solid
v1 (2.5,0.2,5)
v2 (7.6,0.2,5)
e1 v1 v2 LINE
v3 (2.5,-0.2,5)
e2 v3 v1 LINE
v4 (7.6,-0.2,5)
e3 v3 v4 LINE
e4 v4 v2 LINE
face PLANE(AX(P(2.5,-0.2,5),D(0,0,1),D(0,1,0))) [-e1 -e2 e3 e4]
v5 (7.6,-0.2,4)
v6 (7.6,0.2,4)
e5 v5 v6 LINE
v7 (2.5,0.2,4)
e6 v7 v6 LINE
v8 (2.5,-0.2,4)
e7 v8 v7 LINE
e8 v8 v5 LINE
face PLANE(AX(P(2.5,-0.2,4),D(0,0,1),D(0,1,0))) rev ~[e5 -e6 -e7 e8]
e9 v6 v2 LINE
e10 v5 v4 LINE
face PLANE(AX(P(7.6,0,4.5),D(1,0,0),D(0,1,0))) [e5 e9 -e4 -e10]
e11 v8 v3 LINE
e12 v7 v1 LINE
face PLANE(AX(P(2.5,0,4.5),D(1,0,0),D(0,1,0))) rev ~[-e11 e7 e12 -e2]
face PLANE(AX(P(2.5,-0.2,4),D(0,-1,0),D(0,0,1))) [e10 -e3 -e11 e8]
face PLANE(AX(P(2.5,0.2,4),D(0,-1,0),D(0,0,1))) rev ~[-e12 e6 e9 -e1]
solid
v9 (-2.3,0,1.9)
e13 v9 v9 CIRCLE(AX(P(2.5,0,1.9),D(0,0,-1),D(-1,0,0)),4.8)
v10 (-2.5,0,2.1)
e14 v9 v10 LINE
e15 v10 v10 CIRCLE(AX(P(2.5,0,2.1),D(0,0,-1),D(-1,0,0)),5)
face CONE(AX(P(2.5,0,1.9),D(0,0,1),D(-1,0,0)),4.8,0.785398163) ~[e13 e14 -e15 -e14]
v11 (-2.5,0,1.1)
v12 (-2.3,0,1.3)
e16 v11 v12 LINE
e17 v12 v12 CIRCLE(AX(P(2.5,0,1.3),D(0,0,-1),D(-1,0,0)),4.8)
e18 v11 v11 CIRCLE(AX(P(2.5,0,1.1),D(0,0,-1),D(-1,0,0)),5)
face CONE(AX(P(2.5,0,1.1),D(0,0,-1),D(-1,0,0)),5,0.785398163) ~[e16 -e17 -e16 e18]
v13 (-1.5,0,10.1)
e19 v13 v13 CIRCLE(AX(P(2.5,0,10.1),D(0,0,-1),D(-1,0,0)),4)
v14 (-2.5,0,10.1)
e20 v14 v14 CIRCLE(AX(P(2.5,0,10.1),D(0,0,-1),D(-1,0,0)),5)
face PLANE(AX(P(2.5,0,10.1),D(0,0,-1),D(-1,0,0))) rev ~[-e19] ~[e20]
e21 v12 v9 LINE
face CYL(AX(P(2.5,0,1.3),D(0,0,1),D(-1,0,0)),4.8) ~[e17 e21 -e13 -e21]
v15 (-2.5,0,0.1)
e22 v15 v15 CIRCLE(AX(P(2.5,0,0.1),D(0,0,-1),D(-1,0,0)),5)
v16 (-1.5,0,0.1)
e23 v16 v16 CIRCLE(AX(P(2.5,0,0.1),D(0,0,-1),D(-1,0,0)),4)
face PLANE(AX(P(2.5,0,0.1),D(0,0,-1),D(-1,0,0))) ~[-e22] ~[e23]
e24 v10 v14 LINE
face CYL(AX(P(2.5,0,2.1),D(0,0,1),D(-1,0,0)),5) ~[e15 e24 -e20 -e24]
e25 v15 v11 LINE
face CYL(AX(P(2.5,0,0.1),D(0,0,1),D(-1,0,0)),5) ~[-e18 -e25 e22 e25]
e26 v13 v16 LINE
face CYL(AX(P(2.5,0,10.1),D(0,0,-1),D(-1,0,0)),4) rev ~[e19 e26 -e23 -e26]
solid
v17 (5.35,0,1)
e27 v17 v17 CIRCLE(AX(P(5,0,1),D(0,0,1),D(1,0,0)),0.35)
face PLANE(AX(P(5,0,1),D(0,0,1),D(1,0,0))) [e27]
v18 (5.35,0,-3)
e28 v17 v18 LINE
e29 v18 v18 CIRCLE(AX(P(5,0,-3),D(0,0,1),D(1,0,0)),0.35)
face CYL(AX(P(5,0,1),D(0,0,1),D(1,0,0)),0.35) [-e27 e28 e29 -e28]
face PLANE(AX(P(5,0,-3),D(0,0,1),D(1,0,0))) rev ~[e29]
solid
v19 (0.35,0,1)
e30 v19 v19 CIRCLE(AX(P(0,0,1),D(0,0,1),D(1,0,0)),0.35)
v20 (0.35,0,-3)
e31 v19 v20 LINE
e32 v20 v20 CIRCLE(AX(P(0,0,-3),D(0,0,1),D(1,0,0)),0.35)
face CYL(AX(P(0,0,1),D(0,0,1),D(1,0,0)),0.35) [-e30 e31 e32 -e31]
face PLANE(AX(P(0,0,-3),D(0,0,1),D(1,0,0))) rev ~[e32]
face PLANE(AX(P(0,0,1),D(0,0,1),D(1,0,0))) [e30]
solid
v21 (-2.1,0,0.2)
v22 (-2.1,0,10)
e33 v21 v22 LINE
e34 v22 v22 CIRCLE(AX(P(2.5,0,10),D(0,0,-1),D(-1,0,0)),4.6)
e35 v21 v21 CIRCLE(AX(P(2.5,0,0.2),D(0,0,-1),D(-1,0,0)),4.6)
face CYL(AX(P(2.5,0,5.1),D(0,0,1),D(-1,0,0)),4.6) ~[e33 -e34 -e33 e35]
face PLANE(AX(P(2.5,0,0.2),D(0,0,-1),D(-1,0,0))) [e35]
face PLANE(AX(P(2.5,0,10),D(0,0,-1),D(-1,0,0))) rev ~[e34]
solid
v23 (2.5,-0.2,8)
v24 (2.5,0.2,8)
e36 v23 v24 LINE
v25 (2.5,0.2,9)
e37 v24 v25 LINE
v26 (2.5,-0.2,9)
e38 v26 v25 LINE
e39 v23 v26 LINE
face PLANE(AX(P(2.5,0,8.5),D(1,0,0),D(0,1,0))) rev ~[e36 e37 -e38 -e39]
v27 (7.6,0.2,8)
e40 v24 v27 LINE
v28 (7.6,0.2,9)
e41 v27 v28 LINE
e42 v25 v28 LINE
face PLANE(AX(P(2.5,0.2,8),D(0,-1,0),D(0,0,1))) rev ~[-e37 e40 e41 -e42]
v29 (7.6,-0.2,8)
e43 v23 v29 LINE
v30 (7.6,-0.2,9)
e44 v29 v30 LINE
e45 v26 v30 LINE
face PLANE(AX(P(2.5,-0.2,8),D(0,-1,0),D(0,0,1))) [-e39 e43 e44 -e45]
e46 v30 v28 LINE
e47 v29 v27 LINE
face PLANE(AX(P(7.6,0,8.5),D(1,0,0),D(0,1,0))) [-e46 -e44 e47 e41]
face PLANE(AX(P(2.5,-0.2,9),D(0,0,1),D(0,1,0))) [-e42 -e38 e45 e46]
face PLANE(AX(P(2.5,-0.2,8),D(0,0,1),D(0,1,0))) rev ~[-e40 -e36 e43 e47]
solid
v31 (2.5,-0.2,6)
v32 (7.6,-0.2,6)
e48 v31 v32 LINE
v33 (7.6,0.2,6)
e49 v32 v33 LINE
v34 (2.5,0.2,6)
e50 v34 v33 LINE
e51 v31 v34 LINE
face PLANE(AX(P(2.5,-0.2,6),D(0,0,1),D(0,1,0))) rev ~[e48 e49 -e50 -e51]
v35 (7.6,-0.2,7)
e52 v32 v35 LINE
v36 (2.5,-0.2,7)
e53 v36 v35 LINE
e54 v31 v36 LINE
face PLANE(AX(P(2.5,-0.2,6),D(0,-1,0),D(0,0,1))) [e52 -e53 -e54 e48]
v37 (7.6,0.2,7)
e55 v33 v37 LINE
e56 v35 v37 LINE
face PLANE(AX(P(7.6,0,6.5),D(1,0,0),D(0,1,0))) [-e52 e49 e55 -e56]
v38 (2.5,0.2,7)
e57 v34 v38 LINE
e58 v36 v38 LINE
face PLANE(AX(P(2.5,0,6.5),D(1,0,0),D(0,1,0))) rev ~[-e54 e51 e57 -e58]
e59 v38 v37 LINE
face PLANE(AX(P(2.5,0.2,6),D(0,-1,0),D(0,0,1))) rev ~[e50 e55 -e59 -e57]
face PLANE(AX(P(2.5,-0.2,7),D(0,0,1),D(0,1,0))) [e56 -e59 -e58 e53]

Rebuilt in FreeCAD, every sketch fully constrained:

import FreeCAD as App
import Part
import Sketcher

V = App.Vector
Q = App.Units.Quantity

doc = App.newDocument("Part")
body = doc.addObject("PartDesign::Body", "Body")

# Sketch on XZ plane
sketch1 = body.newObject("Sketcher::SketchObject", "Sketch")
sketch1.AttachmentSupport = (doc.getObject("XZ_Plane"), [""])
sketch1.MapMode = "FlatFace"
sketch1.addGeometry([
    Part.LineSegment(V(-2.5, 1.1, 0), V(-2.5, 0.1, 0)),  # 0
    Part.LineSegment(V(-2.5, 0.1, 0), V(-1.5, 0.1, 0)),  # 1
    Part.LineSegment(V(-1.5, 0.1, 0), V(-1.5, 10.1, 0)),  # 2
    Part.LineSegment(V(-1.5, 10.1, 0), V(-2.5, 10.1, 0)),  # 3
    Part.LineSegment(V(-2.5, 10.1, 0), V(-2.5, 2.1, 0)),  # 4
    Part.LineSegment(V(-2.5, 2.1, 0), V(-2.3, 1.9, 0)),  # 5
    Part.LineSegment(V(-2.3, 1.9, 0), V(-2.3, 1.3, 0)),  # 6
    Part.LineSegment(V(-2.3, 1.3, 0), V(-2.5, 1.1, 0)),  # 7
], False)
sketch1.addGeometry(Part.LineSegment(V(2.5, 10.1, 0), V(2.5, 0.1, 0)), True)  # axis
sketch1.addConstraint([
    Sketcher.Constraint("Coincident", 0, 2, 1, 1),
    Sketcher.Constraint("Coincident", 1, 2, 2, 1),
    Sketcher.Constraint("Coincident", 2, 2, 3, 1),
    Sketcher.Constraint("Coincident", 3, 2, 4, 1),
    Sketcher.Constraint("Coincident", 4, 2, 5, 1),
    Sketcher.Constraint("Coincident", 5, 2, 6, 1),
    Sketcher.Constraint("Coincident", 6, 2, 7, 1),
    Sketcher.Constraint("Coincident", 7, 2, 0, 1),
    Sketcher.Constraint("Vertical", 0),
    Sketcher.Constraint("Horizontal", 1),
    Sketcher.Constraint("Vertical", 2),
    Sketcher.Constraint("Horizontal", 3),
    Sketcher.Constraint("Vertical", 4),
    Sketcher.Constraint("Vertical", 6),
    Sketcher.Constraint("Vertical", 8),
    Sketcher.Constraint("Symmetric", 3, 2, 8, 1, -2),
    Sketcher.Constraint("Symmetric", 0, 2, 8, 2, -2),
    Sketcher.Constraint("Perpendicular", 5, 7),
    Sketcher.Constraint("Equal", 3, 0),
    Sketcher.Constraint("Equal", 5, 7),
    Sketcher.Constraint("DistanceX", 1, 1, 1, 2, Q("1 mm")),
    Sketcher.Constraint("DistanceY", 2, 1, 2, 2, Q("10 mm")),
    Sketcher.Constraint("DistanceY", 4, 2, 4, 1, Q("8 mm")),
    Sketcher.Constraint("DistanceY", 6, 2, 6, 1, Q("0.6 mm")),
    Sketcher.Constraint("DistanceX", 2, 2, 8, 1, Q("4 mm")),
    Sketcher.Constraint("DistanceY", -1, 1, 0, 2, Q("0.1 mm")),
])
revolution = body.newObject("PartDesign::Revolution", "Revolution")
revolution.Profile = sketch1
revolution.ReferenceAxis = (sketch1, ["Axis0"])
revolution.Angle = 360
body2 = doc.addObject("PartDesign::Body", "Body001")

# Sketch on XZ plane
sketch2 = body2.newObject("Sketcher::SketchObject", "Sketch001")
sketch2.AttachmentSupport = (doc.getObject("XZ_Plane001"), [""])
sketch2.MapMode = "FlatFace"
sketch2.addGeometry([
    Part.LineSegment(V(-2.1, 10, 0), V(-2.1, 0.2, 0)),
    Part.LineSegment(V(-2.1, 0.2, 0), V(2.5, 0.2, 0)),
    Part.LineSegment(V(2.5, 0.2, 0), V(2.5, 10, 0)),
    Part.LineSegment(V(2.5, 10, 0), V(-2.1, 10, 0)),
], False)
sketch2.addGeometry(Part.LineSegment(V(2.5, 10, 0), V(2.5, 0.2, 0)), True)  # axis
sketch2.addConstraint([
    Sketcher.Constraint("Coincident", 0, 2, 1, 1),
    Sketcher.Constraint("Coincident", 1, 2, 2, 1),
    Sketcher.Constraint("Coincident", 2, 2, 3, 1),
    Sketcher.Constraint("Coincident", 3, 2, 0, 1),
    Sketcher.Constraint("Vertical", 0),
    Sketcher.Constraint("Horizontal", 1),
    Sketcher.Constraint("Vertical", 2),
    Sketcher.Constraint("Horizontal", 3),
    Sketcher.Constraint("Vertical", 4),
    Sketcher.Constraint("Coincident", 4, 1, 2, 2),
    Sketcher.Constraint("Horizontal", 0, 2, 4, 2),
    Sketcher.Constraint("DistanceX", 1, 1, 1, 2, Q("4.6 mm")),
    Sketcher.Constraint("DistanceY", 0, 2, 0, 1, Q("9.8 mm")),
    Sketcher.Constraint("DistanceY", -1, 1, 2, 2, Q("10 mm")),
    Sketcher.Constraint("DistanceX", 0, 2, -1, 1, Q("2.1 mm")),
])
revolution2 = body2.newObject("PartDesign::Revolution", "Revolution001")
revolution2.Profile = sketch2
revolution2.ReferenceAxis = (sketch2, ["Axis0"])
revolution2.Angle = 360
body3 = doc.addObject("PartDesign::Body", "Body002")
body3.AllowCompound = True

# Sketch on XY plane
sketch3 = body3.newObject("Sketcher::SketchObject", "Sketch002")
sketch3.AttachmentSupport = (doc.getObject("XY_Plane002"), [""])
sketch3.MapMode = "FlatFace"
sketch3.AttachmentOffset = App.Placement(V(0, 0, 1), App.Rotation())
sketch3.addGeometry([
    Part.Circle(V(0, 0, 0), V(0, 0, 1), 0.35),
    Part.Circle(V(5, 0, 0), V(0, 0, 1), 0.35),
], False)
sketch3.addConstraint([
    Sketcher.Constraint("Coincident", 0, 3, -1, 1),
    Sketcher.Constraint("Equal", 0, 1),
    Sketcher.Constraint("PointOnObject", 1, 3, -1),
    Sketcher.Constraint("Diameter", 0, Q("0.7 mm")),
    Sketcher.Constraint("DistanceX", -1, 1, 1, 3, Q("5 mm")),
])
pad1 = body3.newObject("PartDesign::Pad", "Pad")
pad1.Profile = sketch3
pad1.Length = 4
pad1.Reversed = True
body4 = doc.addObject("PartDesign::Body", "Body003")
body4.AllowCompound = True

# Sketch on YZ plane
sketch4 = body4.newObject("Sketcher::SketchObject", "Sketch003")
sketch4.AttachmentSupport = (doc.getObject("YZ_Plane003"), [""])
sketch4.MapMode = "FlatFace"
sketch4.AttachmentOffset = App.Placement(V(0, 0, 2.5), App.Rotation())
sketch4.addGeometry([
    Part.LineSegment(V(-0.2, 5, 0), V(-0.2, 4, 0)),  # 0
    Part.LineSegment(V(-0.2, 4, 0), V(0.2, 4, 0)),  # 1
    Part.LineSegment(V(0.2, 4, 0), V(0.2, 5, 0)),  # 2
    Part.LineSegment(V(0.2, 5, 0), V(-0.2, 5, 0)),  # 3
    Part.LineSegment(V(-0.2, 7, 0), V(-0.2, 6, 0)),  # 4
    Part.LineSegment(V(-0.2, 6, 0), V(0.2, 6, 0)),  # 5
    Part.LineSegment(V(0.2, 6, 0), V(0.2, 7, 0)),  # 6
    Part.LineSegment(V(0.2, 7, 0), V(-0.2, 7, 0)),  # 7
    Part.LineSegment(V(-0.2, 9, 0), V(-0.2, 8, 0)),  # 8
    Part.LineSegment(V(-0.2, 8, 0), V(0.2, 8, 0)),  # 9
    Part.LineSegment(V(0.2, 8, 0), V(0.2, 9, 0)),  # 10
    Part.LineSegment(V(0.2, 9, 0), V(-0.2, 9, 0)),  # 11
], False)
sketch4.addConstraint([
    Sketcher.Constraint("Coincident", 0, 2, 1, 1),
    Sketcher.Constraint("Coincident", 1, 2, 2, 1),
    Sketcher.Constraint("Coincident", 2, 2, 3, 1),
    Sketcher.Constraint("Coincident", 3, 2, 0, 1),
    Sketcher.Constraint("Coincident", 4, 2, 5, 1),
    Sketcher.Constraint("Coincident", 5, 2, 6, 1),
    Sketcher.Constraint("Coincident", 6, 2, 7, 1),
    Sketcher.Constraint("Coincident", 7, 2, 4, 1),
    Sketcher.Constraint("Coincident", 8, 2, 9, 1),
    Sketcher.Constraint("Coincident", 9, 2, 10, 1),
    Sketcher.Constraint("Coincident", 10, 2, 11, 1),
    Sketcher.Constraint("Coincident", 11, 2, 8, 1),
    Sketcher.Constraint("Vertical", 0),
    Sketcher.Constraint("Horizontal", 1),
    Sketcher.Constraint("Vertical", 2),
    Sketcher.Constraint("Horizontal", 3),
    Sketcher.Constraint("Vertical", 4),
    Sketcher.Constraint("Horizontal", 5),
    Sketcher.Constraint("Vertical", 6),
    Sketcher.Constraint("Horizontal", 7),
    Sketcher.Constraint("Vertical", 8),
    Sketcher.Constraint("Horizontal", 9),
    Sketcher.Constraint("Vertical", 10),
    Sketcher.Constraint("Horizontal", 11),
    Sketcher.Constraint("Vertical", 3, 2, 4, 2),
    Sketcher.Constraint("Vertical", 2, 2, 5, 2),
    Sketcher.Constraint("Vertical", 7, 2, 8, 2),
    Sketcher.Constraint("Vertical", 6, 2, 9, 2),
    Sketcher.Constraint("Equal", 2, 4),
    Sketcher.Constraint("Equal", 6, 8),
    Sketcher.Constraint("DistanceY", 0, 2, 0, 1, Q("1 mm")),
    Sketcher.Constraint("DistanceX", 1, 1, 1, 2, Q("0.4 mm")),
    Sketcher.Constraint("DistanceY", -1, 1, 0, 2, Q("4 mm")),
    Sketcher.Constraint("DistanceY", -1, 1, 4, 2, Q("6 mm")),
    Sketcher.Constraint("DistanceY", -1, 1, 8, 2, Q("8 mm")),
    Sketcher.Constraint("DistanceX", 0, 2, -1, 1, Q("0.2 mm")),
])
pad2 = body4.newObject("PartDesign::Pad", "Pad001")
pad2.Profile = sketch4
pad2.Length = 5.1

doc.recompute()
